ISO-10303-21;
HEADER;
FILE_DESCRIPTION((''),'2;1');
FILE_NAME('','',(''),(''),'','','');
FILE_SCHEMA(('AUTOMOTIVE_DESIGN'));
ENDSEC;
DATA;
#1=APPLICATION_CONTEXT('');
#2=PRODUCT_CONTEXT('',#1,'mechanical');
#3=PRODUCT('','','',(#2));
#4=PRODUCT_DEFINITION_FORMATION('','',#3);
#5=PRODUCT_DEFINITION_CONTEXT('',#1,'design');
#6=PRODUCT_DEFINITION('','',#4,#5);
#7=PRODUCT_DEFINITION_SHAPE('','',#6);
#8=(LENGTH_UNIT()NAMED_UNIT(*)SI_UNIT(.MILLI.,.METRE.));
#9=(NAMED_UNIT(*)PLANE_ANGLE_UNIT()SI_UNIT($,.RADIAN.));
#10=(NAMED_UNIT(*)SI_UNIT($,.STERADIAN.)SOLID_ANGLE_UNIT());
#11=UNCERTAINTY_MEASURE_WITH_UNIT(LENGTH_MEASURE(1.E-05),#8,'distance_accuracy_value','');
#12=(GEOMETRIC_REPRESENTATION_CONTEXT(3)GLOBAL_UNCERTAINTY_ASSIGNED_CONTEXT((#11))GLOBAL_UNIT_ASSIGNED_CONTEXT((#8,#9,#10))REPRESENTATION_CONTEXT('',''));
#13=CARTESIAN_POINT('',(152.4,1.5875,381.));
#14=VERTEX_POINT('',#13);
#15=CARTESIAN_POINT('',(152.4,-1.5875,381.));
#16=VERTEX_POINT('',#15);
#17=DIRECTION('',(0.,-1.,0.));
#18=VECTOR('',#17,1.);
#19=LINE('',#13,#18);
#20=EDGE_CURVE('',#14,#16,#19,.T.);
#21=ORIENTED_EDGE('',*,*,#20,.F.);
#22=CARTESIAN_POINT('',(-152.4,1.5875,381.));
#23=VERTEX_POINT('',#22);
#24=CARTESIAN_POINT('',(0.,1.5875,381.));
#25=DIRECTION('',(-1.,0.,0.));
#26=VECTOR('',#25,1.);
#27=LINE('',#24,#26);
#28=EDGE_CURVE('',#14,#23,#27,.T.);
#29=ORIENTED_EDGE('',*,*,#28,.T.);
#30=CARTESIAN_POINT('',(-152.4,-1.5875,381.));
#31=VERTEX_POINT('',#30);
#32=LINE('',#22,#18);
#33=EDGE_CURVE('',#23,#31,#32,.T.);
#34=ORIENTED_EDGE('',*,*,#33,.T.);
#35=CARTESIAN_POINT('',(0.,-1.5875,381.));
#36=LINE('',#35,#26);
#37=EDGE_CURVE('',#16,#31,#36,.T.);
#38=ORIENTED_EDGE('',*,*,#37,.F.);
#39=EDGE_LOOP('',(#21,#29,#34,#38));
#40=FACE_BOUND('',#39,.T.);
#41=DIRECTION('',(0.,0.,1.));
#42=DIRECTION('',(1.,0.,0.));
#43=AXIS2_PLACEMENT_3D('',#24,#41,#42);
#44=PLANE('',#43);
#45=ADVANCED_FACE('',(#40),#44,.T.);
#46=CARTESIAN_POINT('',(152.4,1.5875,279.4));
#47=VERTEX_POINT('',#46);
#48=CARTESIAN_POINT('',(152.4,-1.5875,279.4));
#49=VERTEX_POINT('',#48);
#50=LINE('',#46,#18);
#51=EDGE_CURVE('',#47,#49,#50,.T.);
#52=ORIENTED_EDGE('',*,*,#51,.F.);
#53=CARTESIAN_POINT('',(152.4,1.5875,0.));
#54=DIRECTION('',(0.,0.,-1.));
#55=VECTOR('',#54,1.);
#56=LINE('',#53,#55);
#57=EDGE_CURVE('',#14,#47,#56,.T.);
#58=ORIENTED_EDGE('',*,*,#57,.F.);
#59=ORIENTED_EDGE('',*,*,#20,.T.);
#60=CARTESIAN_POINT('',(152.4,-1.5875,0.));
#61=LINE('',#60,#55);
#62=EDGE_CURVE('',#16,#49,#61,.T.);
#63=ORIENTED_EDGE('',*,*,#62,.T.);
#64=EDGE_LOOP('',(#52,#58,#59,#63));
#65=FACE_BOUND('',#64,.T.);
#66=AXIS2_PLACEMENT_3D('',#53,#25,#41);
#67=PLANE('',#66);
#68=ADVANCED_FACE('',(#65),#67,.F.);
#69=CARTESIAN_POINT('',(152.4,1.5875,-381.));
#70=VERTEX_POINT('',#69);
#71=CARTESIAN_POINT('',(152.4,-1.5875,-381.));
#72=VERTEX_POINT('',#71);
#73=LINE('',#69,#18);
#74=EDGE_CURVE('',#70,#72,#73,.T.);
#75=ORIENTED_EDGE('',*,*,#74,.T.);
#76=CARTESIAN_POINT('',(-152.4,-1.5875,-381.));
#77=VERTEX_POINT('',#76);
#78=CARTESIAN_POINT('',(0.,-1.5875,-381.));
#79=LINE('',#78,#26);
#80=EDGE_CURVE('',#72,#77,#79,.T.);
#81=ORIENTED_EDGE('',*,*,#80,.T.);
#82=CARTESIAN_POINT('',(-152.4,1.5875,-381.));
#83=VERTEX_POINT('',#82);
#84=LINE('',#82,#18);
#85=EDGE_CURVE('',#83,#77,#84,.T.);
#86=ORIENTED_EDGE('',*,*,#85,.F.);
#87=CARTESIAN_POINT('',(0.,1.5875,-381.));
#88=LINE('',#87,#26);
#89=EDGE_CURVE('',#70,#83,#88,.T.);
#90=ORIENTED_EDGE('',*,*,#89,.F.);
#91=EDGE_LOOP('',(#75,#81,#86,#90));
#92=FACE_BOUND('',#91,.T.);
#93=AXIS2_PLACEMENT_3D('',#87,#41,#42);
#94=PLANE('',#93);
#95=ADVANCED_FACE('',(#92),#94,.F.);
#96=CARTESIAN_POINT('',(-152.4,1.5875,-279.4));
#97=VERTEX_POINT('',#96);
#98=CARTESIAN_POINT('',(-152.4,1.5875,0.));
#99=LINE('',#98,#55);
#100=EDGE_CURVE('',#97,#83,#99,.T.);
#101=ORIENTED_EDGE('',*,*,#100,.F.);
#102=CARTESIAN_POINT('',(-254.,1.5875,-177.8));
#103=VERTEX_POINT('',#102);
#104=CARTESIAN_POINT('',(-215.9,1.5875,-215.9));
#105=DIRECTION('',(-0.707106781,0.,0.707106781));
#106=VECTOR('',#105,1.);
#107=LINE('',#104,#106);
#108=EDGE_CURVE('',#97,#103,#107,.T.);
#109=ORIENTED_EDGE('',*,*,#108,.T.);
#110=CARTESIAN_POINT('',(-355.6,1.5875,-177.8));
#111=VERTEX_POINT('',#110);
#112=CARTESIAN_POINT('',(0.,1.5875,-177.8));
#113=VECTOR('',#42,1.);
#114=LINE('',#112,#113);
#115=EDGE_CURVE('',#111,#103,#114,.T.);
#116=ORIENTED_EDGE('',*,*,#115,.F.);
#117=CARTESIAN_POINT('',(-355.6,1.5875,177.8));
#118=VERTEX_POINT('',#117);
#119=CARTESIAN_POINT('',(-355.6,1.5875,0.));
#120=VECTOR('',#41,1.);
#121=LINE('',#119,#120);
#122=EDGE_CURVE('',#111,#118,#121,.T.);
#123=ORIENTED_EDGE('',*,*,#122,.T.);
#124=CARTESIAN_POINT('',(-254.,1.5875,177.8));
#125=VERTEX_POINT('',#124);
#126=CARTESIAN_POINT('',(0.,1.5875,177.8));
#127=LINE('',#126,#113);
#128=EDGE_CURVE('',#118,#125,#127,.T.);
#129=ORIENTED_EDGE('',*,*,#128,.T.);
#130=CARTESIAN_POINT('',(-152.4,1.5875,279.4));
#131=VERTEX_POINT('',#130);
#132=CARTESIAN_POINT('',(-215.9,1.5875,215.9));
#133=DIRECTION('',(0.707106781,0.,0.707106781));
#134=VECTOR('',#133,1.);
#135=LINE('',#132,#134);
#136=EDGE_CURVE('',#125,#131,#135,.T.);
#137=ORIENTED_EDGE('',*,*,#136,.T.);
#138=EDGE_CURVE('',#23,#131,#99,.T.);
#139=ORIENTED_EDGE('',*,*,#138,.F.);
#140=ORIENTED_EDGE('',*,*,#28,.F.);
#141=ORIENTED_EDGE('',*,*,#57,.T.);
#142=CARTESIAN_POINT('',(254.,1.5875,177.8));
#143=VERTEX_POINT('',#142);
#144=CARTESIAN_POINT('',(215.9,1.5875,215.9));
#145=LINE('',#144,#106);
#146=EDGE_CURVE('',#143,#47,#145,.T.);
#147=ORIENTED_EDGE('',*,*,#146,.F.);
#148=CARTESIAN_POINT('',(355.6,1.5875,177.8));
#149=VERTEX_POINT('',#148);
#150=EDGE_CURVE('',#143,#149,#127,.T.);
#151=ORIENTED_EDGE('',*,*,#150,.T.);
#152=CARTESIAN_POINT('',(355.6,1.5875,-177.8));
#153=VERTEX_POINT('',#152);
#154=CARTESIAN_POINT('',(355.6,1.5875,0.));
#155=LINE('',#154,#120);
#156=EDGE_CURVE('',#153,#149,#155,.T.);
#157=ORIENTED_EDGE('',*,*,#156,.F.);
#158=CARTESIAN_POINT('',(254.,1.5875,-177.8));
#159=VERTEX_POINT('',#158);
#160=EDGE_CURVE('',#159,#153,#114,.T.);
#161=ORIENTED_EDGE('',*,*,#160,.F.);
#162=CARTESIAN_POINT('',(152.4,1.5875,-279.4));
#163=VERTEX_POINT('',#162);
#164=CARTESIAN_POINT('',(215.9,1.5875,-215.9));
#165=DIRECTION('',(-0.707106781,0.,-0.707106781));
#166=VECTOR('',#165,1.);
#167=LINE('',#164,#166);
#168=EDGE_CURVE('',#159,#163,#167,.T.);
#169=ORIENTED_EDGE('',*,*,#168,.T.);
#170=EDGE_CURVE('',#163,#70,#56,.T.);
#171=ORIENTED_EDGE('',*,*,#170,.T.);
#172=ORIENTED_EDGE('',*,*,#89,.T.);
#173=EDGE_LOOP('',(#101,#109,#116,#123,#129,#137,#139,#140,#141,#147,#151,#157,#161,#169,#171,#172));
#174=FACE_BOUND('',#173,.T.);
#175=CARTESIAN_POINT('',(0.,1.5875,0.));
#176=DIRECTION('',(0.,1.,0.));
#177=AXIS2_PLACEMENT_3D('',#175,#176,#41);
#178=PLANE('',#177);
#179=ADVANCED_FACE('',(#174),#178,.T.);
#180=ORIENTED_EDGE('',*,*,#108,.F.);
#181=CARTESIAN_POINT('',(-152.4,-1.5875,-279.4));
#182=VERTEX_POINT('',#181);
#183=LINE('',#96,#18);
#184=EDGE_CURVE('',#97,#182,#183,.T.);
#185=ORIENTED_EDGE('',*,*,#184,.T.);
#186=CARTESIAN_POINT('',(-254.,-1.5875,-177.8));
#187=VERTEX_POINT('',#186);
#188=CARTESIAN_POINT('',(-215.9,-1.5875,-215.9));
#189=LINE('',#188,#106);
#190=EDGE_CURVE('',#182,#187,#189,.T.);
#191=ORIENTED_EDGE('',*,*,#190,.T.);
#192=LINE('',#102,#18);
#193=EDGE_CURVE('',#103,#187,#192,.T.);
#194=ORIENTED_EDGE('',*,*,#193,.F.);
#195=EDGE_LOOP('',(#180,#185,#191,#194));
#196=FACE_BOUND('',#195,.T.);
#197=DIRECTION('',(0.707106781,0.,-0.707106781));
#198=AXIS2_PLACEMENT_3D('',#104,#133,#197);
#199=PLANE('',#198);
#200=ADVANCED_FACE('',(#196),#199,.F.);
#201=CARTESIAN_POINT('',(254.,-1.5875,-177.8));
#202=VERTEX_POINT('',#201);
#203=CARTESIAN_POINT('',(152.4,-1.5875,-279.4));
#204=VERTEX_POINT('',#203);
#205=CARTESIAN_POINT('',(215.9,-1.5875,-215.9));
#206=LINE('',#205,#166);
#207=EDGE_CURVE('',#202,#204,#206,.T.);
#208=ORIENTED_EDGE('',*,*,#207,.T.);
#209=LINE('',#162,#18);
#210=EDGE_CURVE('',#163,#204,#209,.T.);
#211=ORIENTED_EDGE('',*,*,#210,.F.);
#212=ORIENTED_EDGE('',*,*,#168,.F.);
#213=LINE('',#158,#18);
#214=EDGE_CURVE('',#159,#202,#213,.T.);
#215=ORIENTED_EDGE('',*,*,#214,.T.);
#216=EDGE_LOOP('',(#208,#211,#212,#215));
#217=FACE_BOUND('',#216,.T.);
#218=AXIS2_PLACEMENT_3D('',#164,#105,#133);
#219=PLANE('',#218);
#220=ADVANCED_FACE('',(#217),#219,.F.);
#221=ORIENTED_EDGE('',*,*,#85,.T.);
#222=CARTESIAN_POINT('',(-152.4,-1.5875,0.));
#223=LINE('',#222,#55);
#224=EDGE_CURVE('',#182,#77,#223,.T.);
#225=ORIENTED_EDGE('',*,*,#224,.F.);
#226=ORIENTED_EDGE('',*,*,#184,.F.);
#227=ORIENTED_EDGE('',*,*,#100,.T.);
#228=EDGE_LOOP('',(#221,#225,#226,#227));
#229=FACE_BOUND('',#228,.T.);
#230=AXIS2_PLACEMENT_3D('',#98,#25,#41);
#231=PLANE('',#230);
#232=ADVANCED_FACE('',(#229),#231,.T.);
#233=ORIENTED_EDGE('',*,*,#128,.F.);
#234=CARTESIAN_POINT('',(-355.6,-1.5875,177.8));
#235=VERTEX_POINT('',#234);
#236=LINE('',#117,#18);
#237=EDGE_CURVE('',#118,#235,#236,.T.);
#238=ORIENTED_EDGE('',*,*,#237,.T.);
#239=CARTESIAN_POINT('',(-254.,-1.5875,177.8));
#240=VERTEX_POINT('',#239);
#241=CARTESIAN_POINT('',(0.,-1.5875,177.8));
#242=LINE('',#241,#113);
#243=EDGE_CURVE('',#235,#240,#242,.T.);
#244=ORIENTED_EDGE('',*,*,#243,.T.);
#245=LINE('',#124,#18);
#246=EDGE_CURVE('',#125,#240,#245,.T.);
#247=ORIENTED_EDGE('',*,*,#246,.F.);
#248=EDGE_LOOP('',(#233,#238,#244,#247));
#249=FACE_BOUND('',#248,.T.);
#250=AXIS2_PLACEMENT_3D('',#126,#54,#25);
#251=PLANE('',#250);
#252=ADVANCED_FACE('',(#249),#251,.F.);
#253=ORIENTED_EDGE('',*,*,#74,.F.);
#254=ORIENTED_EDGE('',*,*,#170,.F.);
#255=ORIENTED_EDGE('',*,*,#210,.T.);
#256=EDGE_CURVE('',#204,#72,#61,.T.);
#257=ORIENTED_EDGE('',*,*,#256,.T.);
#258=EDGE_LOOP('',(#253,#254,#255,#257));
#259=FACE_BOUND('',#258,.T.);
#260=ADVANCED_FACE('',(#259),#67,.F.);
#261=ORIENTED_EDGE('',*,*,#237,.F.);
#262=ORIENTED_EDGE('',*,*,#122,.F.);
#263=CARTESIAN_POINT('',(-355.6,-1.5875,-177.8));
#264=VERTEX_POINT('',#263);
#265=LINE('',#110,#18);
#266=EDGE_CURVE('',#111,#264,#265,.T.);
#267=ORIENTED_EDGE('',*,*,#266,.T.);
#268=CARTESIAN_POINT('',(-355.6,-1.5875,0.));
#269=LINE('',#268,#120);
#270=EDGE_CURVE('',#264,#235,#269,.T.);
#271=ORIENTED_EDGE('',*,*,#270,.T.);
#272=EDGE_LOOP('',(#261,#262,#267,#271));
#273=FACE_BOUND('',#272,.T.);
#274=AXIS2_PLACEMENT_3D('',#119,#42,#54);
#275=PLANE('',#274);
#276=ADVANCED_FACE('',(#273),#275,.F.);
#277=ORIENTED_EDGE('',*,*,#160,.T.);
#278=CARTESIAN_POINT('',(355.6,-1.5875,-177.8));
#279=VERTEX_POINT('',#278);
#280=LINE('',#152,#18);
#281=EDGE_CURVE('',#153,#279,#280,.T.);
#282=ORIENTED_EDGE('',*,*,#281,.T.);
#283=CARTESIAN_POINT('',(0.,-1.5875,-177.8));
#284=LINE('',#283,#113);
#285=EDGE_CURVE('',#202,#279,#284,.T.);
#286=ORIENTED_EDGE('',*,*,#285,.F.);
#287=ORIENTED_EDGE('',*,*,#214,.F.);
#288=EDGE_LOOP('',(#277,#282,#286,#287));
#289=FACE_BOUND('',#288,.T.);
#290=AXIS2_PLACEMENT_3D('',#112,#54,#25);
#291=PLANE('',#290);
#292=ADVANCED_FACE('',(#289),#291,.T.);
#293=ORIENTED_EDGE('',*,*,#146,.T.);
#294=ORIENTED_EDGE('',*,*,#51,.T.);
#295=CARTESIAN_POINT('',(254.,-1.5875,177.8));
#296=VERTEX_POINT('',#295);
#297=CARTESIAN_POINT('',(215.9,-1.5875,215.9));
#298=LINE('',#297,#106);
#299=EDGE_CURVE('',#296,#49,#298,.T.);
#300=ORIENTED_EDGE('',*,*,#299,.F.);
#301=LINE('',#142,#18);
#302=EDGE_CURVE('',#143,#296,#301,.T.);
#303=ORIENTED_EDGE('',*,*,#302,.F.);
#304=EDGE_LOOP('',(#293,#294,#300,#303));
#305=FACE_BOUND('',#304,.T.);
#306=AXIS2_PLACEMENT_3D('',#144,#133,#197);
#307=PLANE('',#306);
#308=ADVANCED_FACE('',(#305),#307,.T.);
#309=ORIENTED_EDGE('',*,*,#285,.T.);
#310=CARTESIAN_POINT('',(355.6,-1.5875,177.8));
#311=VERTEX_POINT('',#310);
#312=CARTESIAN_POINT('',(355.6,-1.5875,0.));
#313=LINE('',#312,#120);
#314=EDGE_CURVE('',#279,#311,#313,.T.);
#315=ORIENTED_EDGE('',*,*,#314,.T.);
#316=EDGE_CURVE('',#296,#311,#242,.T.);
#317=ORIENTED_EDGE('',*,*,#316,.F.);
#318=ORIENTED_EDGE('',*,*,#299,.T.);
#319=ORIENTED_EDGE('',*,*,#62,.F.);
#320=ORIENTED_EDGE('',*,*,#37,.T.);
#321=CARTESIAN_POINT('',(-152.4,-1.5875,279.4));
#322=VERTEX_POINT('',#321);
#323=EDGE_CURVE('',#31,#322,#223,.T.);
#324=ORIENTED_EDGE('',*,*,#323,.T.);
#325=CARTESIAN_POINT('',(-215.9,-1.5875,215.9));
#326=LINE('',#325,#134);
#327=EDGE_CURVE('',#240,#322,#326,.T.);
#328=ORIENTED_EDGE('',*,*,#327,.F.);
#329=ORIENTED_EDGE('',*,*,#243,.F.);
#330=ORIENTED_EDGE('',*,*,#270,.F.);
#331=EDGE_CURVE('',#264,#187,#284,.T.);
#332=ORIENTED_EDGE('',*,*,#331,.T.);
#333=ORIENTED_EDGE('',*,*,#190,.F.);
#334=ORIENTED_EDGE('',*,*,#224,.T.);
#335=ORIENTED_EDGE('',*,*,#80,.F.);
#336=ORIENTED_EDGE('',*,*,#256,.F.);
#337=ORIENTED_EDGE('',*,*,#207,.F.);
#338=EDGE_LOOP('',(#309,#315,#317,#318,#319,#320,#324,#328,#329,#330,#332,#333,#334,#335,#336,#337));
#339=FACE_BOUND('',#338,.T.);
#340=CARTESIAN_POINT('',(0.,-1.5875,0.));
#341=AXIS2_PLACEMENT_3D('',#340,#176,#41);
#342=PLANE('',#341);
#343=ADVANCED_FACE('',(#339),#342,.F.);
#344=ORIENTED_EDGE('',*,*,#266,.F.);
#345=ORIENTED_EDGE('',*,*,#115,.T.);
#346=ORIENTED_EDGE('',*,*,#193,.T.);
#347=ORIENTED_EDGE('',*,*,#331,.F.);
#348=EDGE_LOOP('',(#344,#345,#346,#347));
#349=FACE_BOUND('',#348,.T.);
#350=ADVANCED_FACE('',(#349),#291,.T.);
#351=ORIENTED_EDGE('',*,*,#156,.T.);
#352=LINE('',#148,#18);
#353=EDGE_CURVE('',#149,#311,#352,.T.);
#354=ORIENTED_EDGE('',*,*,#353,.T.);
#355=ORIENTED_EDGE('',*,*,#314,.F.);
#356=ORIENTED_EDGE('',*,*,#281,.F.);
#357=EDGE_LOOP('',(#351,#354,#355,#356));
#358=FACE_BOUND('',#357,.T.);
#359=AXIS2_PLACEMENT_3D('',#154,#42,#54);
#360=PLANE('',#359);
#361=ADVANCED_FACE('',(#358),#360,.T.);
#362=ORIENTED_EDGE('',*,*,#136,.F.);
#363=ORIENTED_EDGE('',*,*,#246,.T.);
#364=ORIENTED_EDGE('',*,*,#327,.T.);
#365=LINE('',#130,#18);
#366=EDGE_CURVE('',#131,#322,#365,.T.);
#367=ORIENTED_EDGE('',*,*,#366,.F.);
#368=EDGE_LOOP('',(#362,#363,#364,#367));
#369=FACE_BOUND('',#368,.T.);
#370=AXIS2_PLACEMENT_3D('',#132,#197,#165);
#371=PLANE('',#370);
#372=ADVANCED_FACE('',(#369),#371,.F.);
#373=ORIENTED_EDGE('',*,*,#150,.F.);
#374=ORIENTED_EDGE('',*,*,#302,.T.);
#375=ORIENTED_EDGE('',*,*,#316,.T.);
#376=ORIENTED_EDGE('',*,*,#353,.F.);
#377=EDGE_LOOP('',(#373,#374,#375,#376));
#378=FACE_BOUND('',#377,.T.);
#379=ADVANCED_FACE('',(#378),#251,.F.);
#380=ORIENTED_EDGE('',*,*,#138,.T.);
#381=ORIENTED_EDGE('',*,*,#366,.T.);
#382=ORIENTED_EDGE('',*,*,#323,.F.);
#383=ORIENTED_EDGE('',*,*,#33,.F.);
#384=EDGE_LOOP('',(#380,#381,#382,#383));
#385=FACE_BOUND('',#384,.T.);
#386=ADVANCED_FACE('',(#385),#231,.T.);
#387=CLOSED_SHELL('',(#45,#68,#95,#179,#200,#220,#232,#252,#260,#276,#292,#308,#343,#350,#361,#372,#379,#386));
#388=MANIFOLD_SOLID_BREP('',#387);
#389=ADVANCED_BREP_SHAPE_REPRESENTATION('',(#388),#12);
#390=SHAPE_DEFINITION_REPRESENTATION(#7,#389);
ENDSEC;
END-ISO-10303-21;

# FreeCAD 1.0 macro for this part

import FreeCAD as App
import Part
import Sketcher
Q = App.Units.Quantity


def add_polygon(sketch, points):
    """Adds a closed chain of lines whose ends are joined by coincident constraints."""
    first, n = sketch.GeometryCount, len(points)
    for a, b in zip(points, points[1:] + points[:1]):
        sketch.addGeometry(Part.LineSegment(App.Vector(*a, 0), App.Vector(*b, 0)), False)
    for i in range(n):
        sketch.addConstraint(Sketcher.Constraint("Coincident", first + i, 2, first + (i + 1) % n, 1))

doc = App.newDocument("Part")
params = doc.addObject("Spreadsheet::Sheet", "Params")
for row, (alias, value) in enumerate([
    ("sketch1_width", "4 in"),
    ("sketch1_width2", "12 in"),
    ("sketch1_height", "14 in"),
    ("pad1_length", "0.125 in"),
], start=1):
    params.set(f"A{row}", alias)
    params.set(f"B{row}", "=" + value)
    params.setAlias(f"B{row}", alias)

body = doc.addObject("PartDesign::Body", "Body")

# Sketch on XZ plane
sketch1 = body.newObject("Sketcher::SketchObject", "Sketch")
sketch1.AttachmentSupport = (doc.getObject("XZ_Plane"), [""])
sketch1.MapMode = "FlatFace"
add_polygon(sketch1, [(-356, -178), (-356, 178), (-254, 178), (-152, 279), (-152, 381), (152, 381), (152, 279), (254, 178), (356, 178), (356, -178), (254, -178), (152, -279), (152, -381), (-152, -381), (-152, -279), (-254, -178)])  # lines 0-15
sketch1.addConstraint([
    Sketcher.Constraint("Vertical", 0),
    Sketcher.Constraint("Horizontal", 1),
    Sketcher.Constraint("Vertical", 3),
    Sketcher.Constraint("Horizontal", 4),
    Sketcher.Constraint("Vertical", 5),
    Sketcher.Constraint("Horizontal", 7),
    Sketcher.Constraint("Vertical", 8),
    Sketcher.Constraint("Horizontal", 9),
    Sketcher.Constraint("Vertical", 11),
    Sketcher.Constraint("Horizontal", 12),
    Sketcher.Constraint("Vertical", 13),
    Sketcher.Constraint("Horizontal", 15),
    Sketcher.Constraint("Symmetric", 0, 2, 8, 2, -1, 1),
    Sketcher.Constraint("Symmetric", 2, 2, 10, 2, -1, 1),
    Sketcher.Constraint("Symmetric", 4, 2, 12, 2, -1, 1),
    Sketcher.Constraint("Symmetric", 6, 2, 14, 2, -1, 1),
    Sketcher.Constraint("Symmetric", 2, 2, 5, 2, -2),
    Sketcher.Constraint("Symmetric", 1, 2, 6, 2, -2),
    Sketcher.Constraint("Perpendicular", 2, 6),
    Sketcher.Constraint("Perpendicular", 6, 10),
    Sketcher.Constraint("Perpendicular", 10, 14),
    Sketcher.Constraint("Equal", 15, 3),
    Sketcher.Constraint("DistanceX", 1, 1, 1, 2, Q("4 in")),
    Sketcher.Constraint("DistanceX", 4, 1, 4, 2, Q("12 in")),
    Sketcher.Constraint("DistanceY", 0, 1, 0, 2, Q("14 in")),
    Sketcher.Constraint("DistanceX", 0, 2, -1, 1, Q("14 in")),
])
sketch1.setExpression("Constraints[38]", "Params.sketch1_width")
sketch1.setExpression("Constraints[39]", "Params.sketch1_width2")
sketch1.setExpression("Constraints[40]", "Params.sketch1_height")
pad1 = body.newObject("PartDesign::Pad", "Pad")
pad1.Profile = sketch1
pad1.setExpression("Length", "Params.pad1_length")
pad1.Midplane = True

doc.recompute()
